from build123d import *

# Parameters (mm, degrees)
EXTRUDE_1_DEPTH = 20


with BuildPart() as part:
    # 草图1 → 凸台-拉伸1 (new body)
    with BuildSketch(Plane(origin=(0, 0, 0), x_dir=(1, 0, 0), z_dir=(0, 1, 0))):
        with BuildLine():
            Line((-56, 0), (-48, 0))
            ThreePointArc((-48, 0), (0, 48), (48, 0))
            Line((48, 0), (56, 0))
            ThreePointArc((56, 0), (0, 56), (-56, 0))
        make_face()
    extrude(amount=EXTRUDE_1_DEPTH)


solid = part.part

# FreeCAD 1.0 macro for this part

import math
import FreeCAD as App
import Part
import Sketcher
from FreeCAD import Vector
Q = App.Units.Quantity

doc = App.newDocument("Part")
body = doc.addObject("PartDesign::Body", "Body")

# Sketch on XZ plane
sketch1 = body.newObject("Sketcher::SketchObject", "Sketch")
sketch1.AttachmentSupport = (doc.getObject("XZ_Plane"), [""])
sketch1.MapMode = "FlatFace"
sketch1.addGeometry([
    Part.LineSegment(Vector(-56, 0, 0), Vector(-48, 0, 0)),
    Part.ArcOfCircle(Part.Circle(Vector(0, 0, 0), Vector(0, 0, 1), 48), math.radians(180), math.radians(360)),
    Part.LineSegment(Vector(48, 0, 0), Vector(56, 0, 0)),
    Part.ArcOfCircle(Part.Circle(Vector(0, 0, 0), Vector(0, 0, 1), 56), math.radians(180), math.radians(360)),
], False)
sketch1.addConstraint([
    Sketcher.Constraint("Coincident", 0, 2, 1, 1),
    Sketcher.Constraint("Coincident", 1, 2, 2, 1),
    Sketcher.Constraint("Coincident", 2, 2, 3, 2),
    Sketcher.Constraint("Coincident", 3, 1, 0, 1),
    Sketcher.Constraint("Horizontal", 0),
    Sketcher.Constraint("Horizontal", 2),
    Sketcher.Constraint("Coincident", 1, 3, -1, 1),
    Sketcher.Constraint("Coincident", 3, 3, -1, 1),
    Sketcher.Constraint("PointOnObject", 0, 2, -1),
    Sketcher.Constraint("PointOnObject", 1, 2, -1),
    Sketcher.Constraint("Radius", 1, Q("48 mm")),
    Sketcher.Constraint("Radius", 3, Q("56 mm")),
])
pad1 = body.newObject("PartDesign::Pad", "Pad")
pad1.Profile = sketch1
pad1.Length = 20
pad1.Reversed = True

doc.recompute()
